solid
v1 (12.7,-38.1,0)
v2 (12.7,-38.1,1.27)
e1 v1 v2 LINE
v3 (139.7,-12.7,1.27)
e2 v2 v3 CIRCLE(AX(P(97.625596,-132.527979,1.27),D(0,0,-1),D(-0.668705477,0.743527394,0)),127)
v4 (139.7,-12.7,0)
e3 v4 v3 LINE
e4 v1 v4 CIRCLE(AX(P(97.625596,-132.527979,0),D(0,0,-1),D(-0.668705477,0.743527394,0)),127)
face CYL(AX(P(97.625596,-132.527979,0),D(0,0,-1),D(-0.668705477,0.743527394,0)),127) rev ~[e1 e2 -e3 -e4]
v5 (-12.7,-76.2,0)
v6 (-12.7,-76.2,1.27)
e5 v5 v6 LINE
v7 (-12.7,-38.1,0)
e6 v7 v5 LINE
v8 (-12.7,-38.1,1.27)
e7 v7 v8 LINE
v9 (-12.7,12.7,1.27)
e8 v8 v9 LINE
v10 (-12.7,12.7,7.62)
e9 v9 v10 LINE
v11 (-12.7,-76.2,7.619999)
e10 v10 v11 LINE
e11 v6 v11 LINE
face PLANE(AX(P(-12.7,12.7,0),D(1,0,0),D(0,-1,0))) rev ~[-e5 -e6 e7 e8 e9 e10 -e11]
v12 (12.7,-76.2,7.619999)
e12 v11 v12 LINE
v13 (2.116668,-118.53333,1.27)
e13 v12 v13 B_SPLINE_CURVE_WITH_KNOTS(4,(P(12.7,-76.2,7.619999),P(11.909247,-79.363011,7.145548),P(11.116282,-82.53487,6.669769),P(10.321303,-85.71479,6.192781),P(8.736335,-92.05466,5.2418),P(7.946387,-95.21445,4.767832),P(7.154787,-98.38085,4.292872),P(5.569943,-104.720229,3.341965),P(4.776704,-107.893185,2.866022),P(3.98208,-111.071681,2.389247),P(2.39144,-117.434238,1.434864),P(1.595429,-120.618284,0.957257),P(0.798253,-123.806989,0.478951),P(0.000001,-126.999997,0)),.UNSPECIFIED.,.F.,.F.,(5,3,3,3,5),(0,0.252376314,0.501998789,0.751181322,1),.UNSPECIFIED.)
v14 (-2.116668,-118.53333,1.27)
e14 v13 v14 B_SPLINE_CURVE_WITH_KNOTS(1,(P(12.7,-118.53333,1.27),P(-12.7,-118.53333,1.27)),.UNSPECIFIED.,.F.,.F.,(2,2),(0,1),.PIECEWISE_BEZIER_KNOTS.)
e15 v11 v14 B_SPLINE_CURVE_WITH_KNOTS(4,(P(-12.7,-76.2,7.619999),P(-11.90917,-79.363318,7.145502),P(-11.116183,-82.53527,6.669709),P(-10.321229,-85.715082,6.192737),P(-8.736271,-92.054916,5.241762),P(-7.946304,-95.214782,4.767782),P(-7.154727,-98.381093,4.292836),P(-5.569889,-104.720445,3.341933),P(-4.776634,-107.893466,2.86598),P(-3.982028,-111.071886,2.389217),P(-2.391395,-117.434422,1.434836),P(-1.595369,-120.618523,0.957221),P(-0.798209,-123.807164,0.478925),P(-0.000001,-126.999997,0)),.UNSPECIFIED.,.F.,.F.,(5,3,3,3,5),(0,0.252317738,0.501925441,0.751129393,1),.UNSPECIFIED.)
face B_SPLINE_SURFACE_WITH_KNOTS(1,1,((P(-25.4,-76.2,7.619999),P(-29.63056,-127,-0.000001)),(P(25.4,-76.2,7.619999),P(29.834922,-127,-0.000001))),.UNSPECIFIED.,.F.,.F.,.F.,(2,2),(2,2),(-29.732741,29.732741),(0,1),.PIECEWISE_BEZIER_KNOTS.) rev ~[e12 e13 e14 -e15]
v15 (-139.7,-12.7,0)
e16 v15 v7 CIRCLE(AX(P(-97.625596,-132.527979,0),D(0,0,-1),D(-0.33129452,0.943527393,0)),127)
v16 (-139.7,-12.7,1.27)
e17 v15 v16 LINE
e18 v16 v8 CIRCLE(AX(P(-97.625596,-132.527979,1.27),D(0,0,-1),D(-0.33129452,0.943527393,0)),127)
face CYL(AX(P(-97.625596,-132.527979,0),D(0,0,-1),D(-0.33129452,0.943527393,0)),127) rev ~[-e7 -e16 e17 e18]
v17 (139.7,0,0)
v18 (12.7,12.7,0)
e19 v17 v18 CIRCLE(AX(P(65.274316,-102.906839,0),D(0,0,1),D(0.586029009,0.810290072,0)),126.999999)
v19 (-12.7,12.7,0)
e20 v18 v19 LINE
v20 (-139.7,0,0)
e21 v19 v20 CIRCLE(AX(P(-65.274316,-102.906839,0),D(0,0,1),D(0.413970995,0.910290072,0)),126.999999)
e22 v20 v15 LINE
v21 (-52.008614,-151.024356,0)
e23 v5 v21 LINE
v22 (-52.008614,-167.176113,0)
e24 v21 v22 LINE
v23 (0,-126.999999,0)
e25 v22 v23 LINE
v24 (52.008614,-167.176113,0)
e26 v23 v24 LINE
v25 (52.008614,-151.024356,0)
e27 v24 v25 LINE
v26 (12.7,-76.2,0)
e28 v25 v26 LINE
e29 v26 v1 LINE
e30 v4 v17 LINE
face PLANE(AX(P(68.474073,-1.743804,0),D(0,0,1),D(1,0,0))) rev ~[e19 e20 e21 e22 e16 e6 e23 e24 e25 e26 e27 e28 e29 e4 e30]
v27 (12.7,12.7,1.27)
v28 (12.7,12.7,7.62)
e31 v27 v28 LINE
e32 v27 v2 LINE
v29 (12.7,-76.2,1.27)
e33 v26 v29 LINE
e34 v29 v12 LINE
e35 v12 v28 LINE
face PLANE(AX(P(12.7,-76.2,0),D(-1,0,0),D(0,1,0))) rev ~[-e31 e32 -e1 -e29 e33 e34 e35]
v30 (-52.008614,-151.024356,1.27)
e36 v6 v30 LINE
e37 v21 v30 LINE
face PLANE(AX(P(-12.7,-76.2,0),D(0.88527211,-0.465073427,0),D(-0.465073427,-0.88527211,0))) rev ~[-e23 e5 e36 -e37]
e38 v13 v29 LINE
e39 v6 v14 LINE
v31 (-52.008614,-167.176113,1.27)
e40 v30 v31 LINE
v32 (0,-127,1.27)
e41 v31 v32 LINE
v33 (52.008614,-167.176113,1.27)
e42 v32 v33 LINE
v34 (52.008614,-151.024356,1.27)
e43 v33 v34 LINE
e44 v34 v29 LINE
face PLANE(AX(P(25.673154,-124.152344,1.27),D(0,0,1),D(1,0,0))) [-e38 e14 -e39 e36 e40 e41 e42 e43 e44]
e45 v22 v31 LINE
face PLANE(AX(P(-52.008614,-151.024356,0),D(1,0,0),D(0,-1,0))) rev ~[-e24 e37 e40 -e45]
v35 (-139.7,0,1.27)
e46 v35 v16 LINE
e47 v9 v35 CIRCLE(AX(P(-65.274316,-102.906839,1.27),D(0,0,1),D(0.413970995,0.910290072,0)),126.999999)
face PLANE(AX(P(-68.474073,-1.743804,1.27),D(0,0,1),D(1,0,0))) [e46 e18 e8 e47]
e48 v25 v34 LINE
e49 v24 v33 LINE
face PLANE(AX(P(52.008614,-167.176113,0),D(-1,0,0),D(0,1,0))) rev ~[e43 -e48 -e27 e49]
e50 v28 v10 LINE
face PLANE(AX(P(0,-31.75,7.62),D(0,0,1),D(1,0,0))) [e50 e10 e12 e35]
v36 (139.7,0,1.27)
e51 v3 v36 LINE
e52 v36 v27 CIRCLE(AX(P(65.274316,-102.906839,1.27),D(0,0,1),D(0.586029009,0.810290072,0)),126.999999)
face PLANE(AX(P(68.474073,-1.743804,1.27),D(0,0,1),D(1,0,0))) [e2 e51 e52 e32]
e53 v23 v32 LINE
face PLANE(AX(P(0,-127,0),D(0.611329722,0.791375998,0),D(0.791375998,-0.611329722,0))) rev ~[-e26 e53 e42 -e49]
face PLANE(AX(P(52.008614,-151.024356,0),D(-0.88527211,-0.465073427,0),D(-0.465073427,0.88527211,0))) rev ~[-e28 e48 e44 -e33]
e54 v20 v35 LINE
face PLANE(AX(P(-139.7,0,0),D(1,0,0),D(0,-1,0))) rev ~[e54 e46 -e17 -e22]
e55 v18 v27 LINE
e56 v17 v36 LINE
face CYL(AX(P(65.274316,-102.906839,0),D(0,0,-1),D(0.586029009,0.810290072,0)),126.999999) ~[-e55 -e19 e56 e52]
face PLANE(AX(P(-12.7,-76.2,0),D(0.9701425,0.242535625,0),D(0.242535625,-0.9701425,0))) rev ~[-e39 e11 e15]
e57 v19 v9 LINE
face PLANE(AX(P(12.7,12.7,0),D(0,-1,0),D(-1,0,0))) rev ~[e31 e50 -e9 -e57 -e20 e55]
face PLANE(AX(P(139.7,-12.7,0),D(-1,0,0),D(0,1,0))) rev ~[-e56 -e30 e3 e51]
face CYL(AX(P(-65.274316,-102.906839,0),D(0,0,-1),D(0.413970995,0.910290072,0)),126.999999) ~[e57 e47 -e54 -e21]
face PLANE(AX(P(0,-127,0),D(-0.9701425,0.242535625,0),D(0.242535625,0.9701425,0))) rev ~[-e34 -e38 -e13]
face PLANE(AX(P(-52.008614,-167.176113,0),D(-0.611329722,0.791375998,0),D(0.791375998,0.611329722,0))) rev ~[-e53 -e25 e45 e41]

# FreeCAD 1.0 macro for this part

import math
import FreeCAD as App
import Part
import Sketcher

V = App.Vector
Q = App.Units.Quantity

doc = App.newDocument("Part")
body = doc.addObject("PartDesign::Body", "Body")

sketch1 = doc.addObject("Sketcher::SketchObject", "Sketch")
body.addObject(sketch1)
sketch1.AttachmentSupport = (doc.XY_Plane, [""])
sketch1.MapMode = "FlatFace"
sketch1.addGeometry(Part.LineSegment(V(13, 13, 0), V(-13, 13, 0)), False)
sketch1.addGeometry(Part.LineSegment(V(-13, 13, 0), V(-13, -76, 0)), False)
sketch1.addGeometry(Part.LineSegment(V(-13, -76, 0), V(0, -127, 0)), False)
sketch1.addGeometry(Part.LineSegment(V(0, -127, 0), V(13, -76, 0)), False)
sketch1.addGeometry(Part.LineSegment(V(13, -76, 0), V(13, 13, 0)), False)
sketch1.addConstraint(Sketcher.Constraint("Coincident", 0, 2, 1, 1))
sketch1.addConstraint(Sketcher.Constraint("Coincident", 1, 2, 2, 1))
sketch1.addConstraint(Sketcher.Constraint("Coincident", 2, 2, 3, 1))
sketch1.addConstraint(Sketcher.Constraint("Coincident", 3, 2, 4, 1))
sketch1.addConstraint(Sketcher.Constraint("Coincident", 4, 2, 0, 1))
sketch1.addConstraint(Sketcher.Constraint("Horizontal", 0))
sketch1.addConstraint(Sketcher.Constraint("Vertical", 1))
sketch1.addConstraint(Sketcher.Constraint("Vertical", 4))
sketch1.addConstraint(Sketcher.Constraint("Symmetric", 1, 2, 3, 2, -2))
sketch1.addConstraint(Sketcher.Constraint("PointOnObject", 2, 2, -2))
sketch1.addConstraint(Sketcher.Constraint("DistanceX", 0, 2, 0, 1, Q("1 in")))
sketch1.addConstraint(Sketcher.Constraint("DistanceY", 1, 2, 1, 1, Q("3.5 in")))
sketch1.addConstraint(Sketcher.Constraint("DistanceY", 1, 2, -1, 1, Q("3 in")))
sketch1.addConstraint(Sketcher.Constraint("DistanceY", 2, 2, -1, 1, Q("5 in")))
pad1 = doc.addObject("PartDesign::Pad", "Pad")
body.addObject(pad1)
pad1.Profile = sketch1
pad1.Length = Q("0.3 in")

sketch2 = doc.addObject("Sketcher::SketchObject", "Sketch001")
body.addObject(sketch2)
sketch2.AttachmentSupport = (doc.XY_Plane, [""])
sketch2.MapMode = "FlatFace"
sketch2.addGeometry(Part.ArcOfCircle(Part.Circle(V(65, -103, 0), V(0, 0, 1), 127), math.radians(54), math.radians(114)), False)
sketch2.addGeometry(Part.LineSegment(V(13, 13, 0), V(13, -38, 0)), False)
sketch2.addGeometry(Part.ArcOfCircle(Part.Circle(V(98, -133, 0), V(0, 0, 1), 127), math.radians(71), math.radians(132)), False)
sketch2.addGeometry(Part.LineSegment(V(140, -13, 0), V(140, 0, 0)), False)
sketch2.addGeometry(Part.LineSegment(V(-13, -38, 0), V(-13, 13, 0)), False)
sketch2.addGeometry(Part.ArcOfCircle(Part.Circle(V(-65, -103, 0), V(0, 0, 1), 127), math.radians(66), math.radians(126)), False)
sketch2.addGeometry(Part.LineSegment(V(-140, 0, 0), V(-140, -13, 0)), False)
sketch2.addGeometry(Part.ArcOfCircle(Part.Circle(V(-98, -133, 0), V(0, 0, 1), 127), math.radians(48), math.radians(109)), False)
sketch2.addConstraint(Sketcher.Constraint("Coincident", 0, 2, 1, 1))
sketch2.addConstraint(Sketcher.Constraint("Coincident", 1, 2, 2, 2))
sketch2.addConstraint(Sketcher.Constraint("Coincident", 2, 1, 3, 1))
sketch2.addConstraint(Sketcher.Constraint("Coincident", 3, 2, 0, 1))
sketch2.addConstraint(Sketcher.Constraint("Coincident", 4, 2, 5, 1))
sketch2.addConstraint(Sketcher.Constraint("Coincident", 5, 2, 6, 1))
sketch2.addConstraint(Sketcher.Constraint("Coincident", 6, 2, 7, 2))
sketch2.addConstraint(Sketcher.Constraint("Coincident", 7, 1, 4, 1))
sketch2.addConstraint(Sketcher.Constraint("Vertical", 1))
sketch2.addConstraint(Sketcher.Constraint("Vertical", 3))
sketch2.addConstraint(Sketcher.Constraint("Vertical", 4))
sketch2.addConstraint(Sketcher.Constraint("Vertical", 6))
sketch2.addConstraint(Sketcher.Constraint("Equal", 0, 2))
sketch2.addConstraint(Sketcher.Constraint("Equal", 2, 5))
sketch2.addConstraint(Sketcher.Constraint("Equal", 5, 7))
sketch2.addConstraint(Sketcher.Constraint("Symmetric", 3, 2, 5, 2, -1, 1))
sketch2.addConstraint(Sketcher.Constraint("Symmetric", 0, 3, 5, 3, -2))
sketch2.addConstraint(Sketcher.Constraint("Symmetric", 2, 3, 7, 3, -2))
sketch2.addConstraint(Sketcher.Constraint("Horizontal", 0, 2, 4, 2))
sketch2.addConstraint(Sketcher.Constraint("Radius", 0, Q("5 in")))
sketch2.addConstraint(Sketcher.Constraint("DistanceY", 1, 2, 1, 1, Q("2 in")))
sketch2.addConstraint(Sketcher.Constraint("DistanceY", 3, 1, 3, 2, Q("0.5 in")))
sketch2.addConstraint(Sketcher.Constraint("DistanceX", 0, 2, 2, 1, Q("5 in")))
sketch2.addConstraint(Sketcher.Constraint("DistanceY", 2, 1, 0, 2, Q("1 in")))
sketch2.addConstraint(Sketcher.Constraint("DistanceX", 4, 2, 0, 2, Q("1 in")))
pad2 = doc.addObject("PartDesign::Pad", "Pad001")
body.addObject(pad2)
pad2.Profile = sketch2
pad2.Length = Q("0.05 in")

sketch3 = doc.addObject("Sketcher::SketchObject", "Sketch002")
body.addObject(sketch3)
sketch3.AttachmentSupport = (doc.XZ_Plane, [""])
sketch3.MapMode = "FlatFace"
sketch3.AttachmentOffset = App.Placement(V(0, 0, 3 * 25.4), App.Rotation())
sketch3.addGeometry(Part.LineSegment(V(-25, 27, 0), V(-25, 8, 0)), False)
sketch3.addGeometry(Part.LineSegment(V(-25, 8, 0), V(25, 8, 0)), False)
sketch3.addGeometry(Part.LineSegment(V(25, 8, 0), V(25, 27, 0)), False)
sketch3.addGeometry(Part.LineSegment(V(25, 27, 0), V(-25, 27, 0)), False)
sketch3.addConstraint(Sketcher.Constraint("Coincident", 0, 2, 1, 1))
sketch3.addConstraint(Sketcher.Constraint("Coincident", 1, 2, 2, 1))
sketch3.addConstraint(Sketcher.Constraint("Coincident", 2, 2, 3, 1))
sketch3.addConstraint(Sketcher.Constraint("Coincident", 3, 2, 0, 1))
sketch3.addConstraint(Sketcher.Constraint("Vertical", 0))
sketch3.addConstraint(Sketcher.Constraint("Horizontal", 1))
sketch3.addConstraint(Sketcher.Constraint("Vertical", 2))
sketch3.addConstraint(Sketcher.Constraint("Horizontal", 3))
sketch3.addConstraint(Sketcher.Constraint("DistanceX", 1, 1, 1, 2, Q("2 in")))
sketch3.addConstraint(Sketcher.Constraint("DistanceX", 0, 2, -1, 1, Q("1 in")))
sketch3.addConstraint(Sketcher.Constraint("DistanceY", -1, 1, 0, 2, Q("0.3 in")))
sketch3.addConstraint(Sketcher.Constraint("DistanceY", 0, 2, 0, 1, Q("19.067067 mm")))

sketch4 = doc.addObject("Sketcher::SketchObject", "Sketch003")
body.addObject(sketch4)
sketch4.AttachmentSupport = (doc.XZ_Plane, [""])
sketch4.MapMode = "FlatFace"
sketch4.AttachmentOffset = App.Placement(V(0, 0, 5 * 25.4), App.Rotation())
sketch4.addGeometry(Part.LineSegment(V(-30, 29, 0), V(-30, 0, 0)), False)
sketch4.addGeometry(Part.LineSegment(V(-30, 0, 0), V(30, 0, 0)), False)
sketch4.addGeometry(Part.LineSegment(V(30, 0, 0), V(30, 29, 0)), False)
sketch4.addGeometry(Part.LineSegment(V(30, 29, 0), V(-30, 29, 0)), False)
sketch4.addConstraint(Sketcher.Constraint("Coincident", 0, 2, 1, 1))
sketch4.addConstraint(Sketcher.Constraint("Coincident", 1, 2, 2, 1))
sketch4.addConstraint(Sketcher.Constraint("Coincident", 2, 2, 3, 1))
sketch4.addConstraint(Sketcher.Constraint("Coincident", 3, 2, 0, 1))
sketch4.addConstraint(Sketcher.Constraint("Vertical", 0))
sketch4.addConstraint(Sketcher.Constraint("Horizontal", 1))
sketch4.addConstraint(Sketcher.Constraint("Vertical", 2))
sketch4.addConstraint(Sketcher.Constraint("Horizontal", 3))
sketch4.addConstraint(Sketcher.Constraint("PointOnObject", 0, 2, -1))
sketch4.addConstraint(Sketcher.Constraint("DistanceX", 1, 1, 1, 2, Q("59.465482 mm")))
sketch4.addConstraint(Sketcher.Constraint("DistanceY", 0, 2, 0, 1, Q("29.439323 mm")))
sketch4.addConstraint(Sketcher.Constraint("DistanceX", 0, 2, -1, 1, Q("29.63056 mm")))

subtractiveloft = doc.addObject("PartDesign::SubtractiveLoft", "SubtractiveLoft")
body.addObject(subtractiveloft)
subtractiveloft.Profile = sketch3
subtractiveloft.Sections = [sketch4]

sketch5 = doc.addObject("Sketcher::SketchObject", "Sketch004")
body.addObject(sketch5)
sketch5.AttachmentSupport = (doc.XY_Plane, [""])
sketch5.MapMode = "FlatFace"
sketch5.addGeometry(Part.LineSegment(V(13, -76, 0), V(-13, -76, 0)), False)
sketch5.addGeometry(Part.LineSegment(V(-13, -76, 0), V(-52, -151, 0)), False)
sketch5.addGeometry(Part.LineSegment(V(-52, -151, 0), V(-52, -167, 0)), False)
sketch5.addGeometry(Part.LineSegment(V(-52, -167, 0), V(0, -127, 0)), False)
sketch5.addGeometry(Part.LineSegment(V(0, -127, 0), V(52, -167, 0)), False)
sketch5.addGeometry(Part.LineSegment(V(52, -167, 0), V(52, -151, 0)), False)
sketch5.addGeometry(Part.LineSegment(V(52, -151, 0), V(13, -76, 0)), False)
sketch5.addConstraint(Sketcher.Constraint("Coincident", 0, 2, 1, 1))
sketch5.addConstraint(Sketcher.Constraint("Coincident", 1, 2, 2, 1))
sketch5.addConstraint(Sketcher.Constraint("Coincident", 2, 2, 3, 1))
sketch5.addConstraint(Sketcher.Constraint("Coincident", 3, 2, 4, 1))
sketch5.addConstraint(Sketcher.Constraint("Coincident", 4, 2, 5, 1))
sketch5.addConstraint(Sketcher.Constraint("Coincident", 5, 2, 6, 1))
sketch5.addConstraint(Sketcher.Constraint("Coincident", 6, 2, 0, 1))
sketch5.addConstraint(Sketcher.Constraint("Horizontal", 0))
sketch5.addConstraint(Sketcher.Constraint("Vertical", 2))
sketch5.addConstraint(Sketcher.Constraint("Vertical", 5))
sketch5.addConstraint(Sketcher.Constraint("Symmetric", 2, 2, 4, 2, -2))
sketch5.addConstraint(Sketcher.Constraint("PointOnObject", 3, 2, -2))
sketch5.addConstraint(Sketcher.Constraint("Horizontal", 1, 2, 5, 2))
sketch5.addConstraint(Sketcher.Constraint("Equal", 1, 6))
sketch5.addConstraint(Sketcher.Constraint("DistanceX", 0, 2, 0, 1, Q("1 in")))
sketch5.addConstraint(Sketcher.Constraint("DistanceY", 0, 2, -1, 1, Q("3 in")))
sketch5.addConstraint(Sketcher.Constraint("DistanceY", 3, 2, -1, 1, Q("5 in")))
sketch5.addConstraint(Sketcher.Constraint("Distance", 3, Q("65.719221 mm")))
sketch5.addConstraint(Sketcher.Constraint("DistanceY", 2, 2, 2, 1, Q("16.151757 mm")))
sketch5.addConstraint(Sketcher.Constraint("DistanceX", 2, 2, 4, 2, Q("104.017228 mm")))
pad3 = doc.addObject("PartDesign::Pad", "Pad002")
body.addObject(pad3)
pad3.Profile = sketch5
pad3.Length = Q("0.05 in")

doc.recompute()
